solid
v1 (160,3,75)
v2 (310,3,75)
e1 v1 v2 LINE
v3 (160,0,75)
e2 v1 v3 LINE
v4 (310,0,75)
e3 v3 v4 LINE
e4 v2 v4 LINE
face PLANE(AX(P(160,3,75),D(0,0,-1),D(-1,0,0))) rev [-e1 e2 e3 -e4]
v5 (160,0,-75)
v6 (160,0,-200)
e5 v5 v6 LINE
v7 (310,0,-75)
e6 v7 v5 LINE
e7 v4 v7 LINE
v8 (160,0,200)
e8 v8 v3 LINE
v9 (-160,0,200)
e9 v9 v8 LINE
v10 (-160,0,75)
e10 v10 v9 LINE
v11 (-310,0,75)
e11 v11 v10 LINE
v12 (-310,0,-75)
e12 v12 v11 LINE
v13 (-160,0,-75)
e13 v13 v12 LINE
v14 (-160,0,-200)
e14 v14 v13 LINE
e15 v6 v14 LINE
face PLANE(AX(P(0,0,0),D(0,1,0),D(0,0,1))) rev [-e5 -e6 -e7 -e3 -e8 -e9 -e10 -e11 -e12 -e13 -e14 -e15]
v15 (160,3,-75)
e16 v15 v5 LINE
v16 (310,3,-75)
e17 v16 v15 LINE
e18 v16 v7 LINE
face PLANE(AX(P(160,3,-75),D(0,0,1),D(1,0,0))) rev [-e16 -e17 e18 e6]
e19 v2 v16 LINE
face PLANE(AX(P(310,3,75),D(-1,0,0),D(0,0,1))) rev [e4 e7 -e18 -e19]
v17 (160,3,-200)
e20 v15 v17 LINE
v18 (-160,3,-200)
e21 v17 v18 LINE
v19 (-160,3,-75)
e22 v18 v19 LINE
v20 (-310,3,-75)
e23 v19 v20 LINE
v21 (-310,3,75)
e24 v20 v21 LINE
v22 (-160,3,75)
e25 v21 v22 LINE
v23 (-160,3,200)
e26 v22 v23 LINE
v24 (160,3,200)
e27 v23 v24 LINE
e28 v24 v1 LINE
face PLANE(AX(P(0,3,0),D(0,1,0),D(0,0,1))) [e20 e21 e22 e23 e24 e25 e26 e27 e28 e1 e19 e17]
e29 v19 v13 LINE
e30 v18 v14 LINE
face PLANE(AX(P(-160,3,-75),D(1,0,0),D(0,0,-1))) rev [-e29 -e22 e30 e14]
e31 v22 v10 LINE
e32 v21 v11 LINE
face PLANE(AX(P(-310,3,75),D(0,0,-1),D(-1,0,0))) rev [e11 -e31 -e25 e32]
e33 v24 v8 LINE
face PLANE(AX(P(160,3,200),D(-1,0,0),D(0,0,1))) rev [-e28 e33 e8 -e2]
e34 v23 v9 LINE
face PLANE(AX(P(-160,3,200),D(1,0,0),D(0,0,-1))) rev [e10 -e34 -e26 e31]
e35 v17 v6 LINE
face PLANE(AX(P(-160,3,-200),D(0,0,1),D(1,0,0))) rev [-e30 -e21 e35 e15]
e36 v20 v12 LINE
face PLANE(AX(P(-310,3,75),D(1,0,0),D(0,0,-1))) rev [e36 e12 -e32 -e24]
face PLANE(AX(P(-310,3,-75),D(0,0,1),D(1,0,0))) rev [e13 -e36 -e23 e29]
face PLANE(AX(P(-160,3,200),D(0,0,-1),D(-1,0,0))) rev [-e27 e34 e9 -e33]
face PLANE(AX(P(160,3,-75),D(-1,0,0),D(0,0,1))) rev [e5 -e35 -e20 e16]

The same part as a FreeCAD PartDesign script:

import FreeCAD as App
import Part
import Sketcher
from FreeCAD import Vector
Q = App.Units.Quantity


def add_polygon(sketch, points):
    """Adds a closed chain of lines whose ends are joined by coincident constraints."""
    first, n = sketch.GeometryCount, len(points)
    for a, b in zip(points, points[1:] + points[:1]):
        sketch.addGeometry(Part.LineSegment(App.Vector(*a, 0), App.Vector(*b, 0)), False)
    for i in range(n):
        sketch.addConstraint(Sketcher.Constraint("Coincident", first + i, 2, first + (i + 1) % n, 1))

doc = App.newDocument("Part")
body = doc.addObject("PartDesign::Body", "Body")

# Sketch on XZ plane
sketch1 = body.newObject("Sketcher::SketchObject", "Sketch")
sketch1.AttachmentSupport = (doc.getObject("XZ_Plane"), [""])
sketch1.MapMode = "FlatFace"
add_polygon(sketch1, [(-310, 75), (-160, 75), (-160, 200), (160, 200), (160, 75), (310, 75), (310, -75), (160, -75), (160, -200), (-160, -200), (-160, -75), (-310, -75)])  # lines 0-11
sketch1.addConstraint([
    Sketcher.Constraint("Horizontal", 0),
    Sketcher.Constraint("Vertical", 1),
    Sketcher.Constraint("Horizontal", 2),
    Sketcher.Constraint("Vertical", 3),
    Sketcher.Constraint("Horizontal", 4),
    Sketcher.Constraint("Vertical", 5),
    Sketcher.Constraint("Horizontal", 6),
    Sketcher.Constraint("Vertical", 7),
    Sketcher.Constraint("Horizontal", 8),
    Sketcher.Constraint("Vertical", 9),
    Sketcher.Constraint("Horizontal", 10),
    Sketcher.Constraint("Vertical", 11),
    Sketcher.Constraint("Symmetric", 0, 2, 6, 2, -1, 1),
    Sketcher.Constraint("Symmetric", 2, 2, 8, 2, -1, 1),
    Sketcher.Constraint("Symmetric", 4, 2, 10, 2, -1, 1),
    Sketcher.Constraint("Symmetric", 0, 2, 3, 2, -2),
    Sketcher.Constraint("Equal", 10, 5),
    Sketcher.Constraint("DistanceX", 0, 1, 0, 2, Q("150 mm")),
    Sketcher.Constraint("DistanceX", 2, 1, 2, 2, Q("320 mm")),
    Sketcher.Constraint("DistanceY", 1, 1, 1, 2, Q("125 mm")),
])
pad1 = body.newObject("PartDesign::Pad", "Pad")
pad1.Profile = sketch1
pad1.Length = 3
pad1.Reversed = True

doc.recompute()
